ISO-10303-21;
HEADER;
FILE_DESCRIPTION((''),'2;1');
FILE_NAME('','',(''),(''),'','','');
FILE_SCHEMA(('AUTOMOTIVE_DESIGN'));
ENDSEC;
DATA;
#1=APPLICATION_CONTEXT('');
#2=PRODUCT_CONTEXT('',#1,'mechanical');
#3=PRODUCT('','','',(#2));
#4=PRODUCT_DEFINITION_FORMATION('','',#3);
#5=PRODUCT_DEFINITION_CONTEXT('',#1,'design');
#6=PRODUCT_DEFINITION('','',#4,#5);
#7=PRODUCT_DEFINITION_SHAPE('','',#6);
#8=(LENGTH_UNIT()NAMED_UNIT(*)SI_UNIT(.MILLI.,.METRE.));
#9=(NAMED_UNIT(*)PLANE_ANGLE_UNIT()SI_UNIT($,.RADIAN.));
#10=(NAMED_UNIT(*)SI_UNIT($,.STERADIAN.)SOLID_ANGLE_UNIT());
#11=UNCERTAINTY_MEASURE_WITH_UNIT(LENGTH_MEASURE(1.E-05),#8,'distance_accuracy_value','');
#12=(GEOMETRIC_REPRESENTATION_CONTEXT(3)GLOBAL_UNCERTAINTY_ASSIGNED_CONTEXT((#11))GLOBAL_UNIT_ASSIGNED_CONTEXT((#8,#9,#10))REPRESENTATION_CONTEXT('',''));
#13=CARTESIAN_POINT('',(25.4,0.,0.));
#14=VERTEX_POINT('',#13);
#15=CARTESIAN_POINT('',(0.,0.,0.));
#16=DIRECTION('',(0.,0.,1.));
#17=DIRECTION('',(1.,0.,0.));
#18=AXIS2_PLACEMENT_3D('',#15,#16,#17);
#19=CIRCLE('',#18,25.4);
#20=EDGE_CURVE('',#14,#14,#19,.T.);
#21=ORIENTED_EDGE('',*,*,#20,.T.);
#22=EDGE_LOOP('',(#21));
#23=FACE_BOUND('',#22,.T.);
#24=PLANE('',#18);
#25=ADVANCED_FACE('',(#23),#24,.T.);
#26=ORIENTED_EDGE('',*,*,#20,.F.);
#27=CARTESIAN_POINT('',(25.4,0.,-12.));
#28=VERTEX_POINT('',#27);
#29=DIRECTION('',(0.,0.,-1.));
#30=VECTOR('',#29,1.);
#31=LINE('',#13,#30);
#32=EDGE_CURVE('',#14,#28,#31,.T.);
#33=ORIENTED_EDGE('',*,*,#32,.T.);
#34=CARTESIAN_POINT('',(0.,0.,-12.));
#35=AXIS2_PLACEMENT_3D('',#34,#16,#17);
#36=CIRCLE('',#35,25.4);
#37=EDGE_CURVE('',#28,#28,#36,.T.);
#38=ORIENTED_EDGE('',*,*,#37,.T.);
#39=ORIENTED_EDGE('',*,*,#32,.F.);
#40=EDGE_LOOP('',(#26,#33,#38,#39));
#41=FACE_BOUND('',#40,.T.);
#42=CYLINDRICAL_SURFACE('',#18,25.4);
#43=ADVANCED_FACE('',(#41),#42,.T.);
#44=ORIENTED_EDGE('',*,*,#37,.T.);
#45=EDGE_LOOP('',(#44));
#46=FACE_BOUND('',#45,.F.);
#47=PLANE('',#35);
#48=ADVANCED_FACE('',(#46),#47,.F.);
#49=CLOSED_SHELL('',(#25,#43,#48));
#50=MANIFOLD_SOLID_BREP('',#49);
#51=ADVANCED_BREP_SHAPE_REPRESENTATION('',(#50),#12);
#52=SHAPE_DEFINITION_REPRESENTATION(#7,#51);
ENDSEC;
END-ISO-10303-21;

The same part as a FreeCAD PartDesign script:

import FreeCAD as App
import Part
import Sketcher

V = App.Vector
Q = App.Units.Quantity

doc = App.newDocument("Part")
body = doc.addObject("PartDesign::Body", "Body")

sketch1 = doc.addObject("Sketcher::SketchObject", "Sketch")
body.addObject(sketch1)
sketch1.AttachmentSupport = (doc.XY_Plane, [""])
sketch1.MapMode = "FlatFace"
sketch1.addGeometry(Part.Circle(V(0, 0, 0), V(0, 0, 1), 25.4), False)
sketch1.addConstraint(Sketcher.Constraint("Coincident", 0, 3, -1, 1))
sketch1.addConstraint(Sketcher.Constraint("Diameter", 0, Q("50.8 mm")))
pad1 = doc.addObject("PartDesign::Pad", "Pad")
body.addObject(pad1)
pad1.Profile = sketch1
pad1.Length = 12
pad1.Reversed = True

doc.recompute()
